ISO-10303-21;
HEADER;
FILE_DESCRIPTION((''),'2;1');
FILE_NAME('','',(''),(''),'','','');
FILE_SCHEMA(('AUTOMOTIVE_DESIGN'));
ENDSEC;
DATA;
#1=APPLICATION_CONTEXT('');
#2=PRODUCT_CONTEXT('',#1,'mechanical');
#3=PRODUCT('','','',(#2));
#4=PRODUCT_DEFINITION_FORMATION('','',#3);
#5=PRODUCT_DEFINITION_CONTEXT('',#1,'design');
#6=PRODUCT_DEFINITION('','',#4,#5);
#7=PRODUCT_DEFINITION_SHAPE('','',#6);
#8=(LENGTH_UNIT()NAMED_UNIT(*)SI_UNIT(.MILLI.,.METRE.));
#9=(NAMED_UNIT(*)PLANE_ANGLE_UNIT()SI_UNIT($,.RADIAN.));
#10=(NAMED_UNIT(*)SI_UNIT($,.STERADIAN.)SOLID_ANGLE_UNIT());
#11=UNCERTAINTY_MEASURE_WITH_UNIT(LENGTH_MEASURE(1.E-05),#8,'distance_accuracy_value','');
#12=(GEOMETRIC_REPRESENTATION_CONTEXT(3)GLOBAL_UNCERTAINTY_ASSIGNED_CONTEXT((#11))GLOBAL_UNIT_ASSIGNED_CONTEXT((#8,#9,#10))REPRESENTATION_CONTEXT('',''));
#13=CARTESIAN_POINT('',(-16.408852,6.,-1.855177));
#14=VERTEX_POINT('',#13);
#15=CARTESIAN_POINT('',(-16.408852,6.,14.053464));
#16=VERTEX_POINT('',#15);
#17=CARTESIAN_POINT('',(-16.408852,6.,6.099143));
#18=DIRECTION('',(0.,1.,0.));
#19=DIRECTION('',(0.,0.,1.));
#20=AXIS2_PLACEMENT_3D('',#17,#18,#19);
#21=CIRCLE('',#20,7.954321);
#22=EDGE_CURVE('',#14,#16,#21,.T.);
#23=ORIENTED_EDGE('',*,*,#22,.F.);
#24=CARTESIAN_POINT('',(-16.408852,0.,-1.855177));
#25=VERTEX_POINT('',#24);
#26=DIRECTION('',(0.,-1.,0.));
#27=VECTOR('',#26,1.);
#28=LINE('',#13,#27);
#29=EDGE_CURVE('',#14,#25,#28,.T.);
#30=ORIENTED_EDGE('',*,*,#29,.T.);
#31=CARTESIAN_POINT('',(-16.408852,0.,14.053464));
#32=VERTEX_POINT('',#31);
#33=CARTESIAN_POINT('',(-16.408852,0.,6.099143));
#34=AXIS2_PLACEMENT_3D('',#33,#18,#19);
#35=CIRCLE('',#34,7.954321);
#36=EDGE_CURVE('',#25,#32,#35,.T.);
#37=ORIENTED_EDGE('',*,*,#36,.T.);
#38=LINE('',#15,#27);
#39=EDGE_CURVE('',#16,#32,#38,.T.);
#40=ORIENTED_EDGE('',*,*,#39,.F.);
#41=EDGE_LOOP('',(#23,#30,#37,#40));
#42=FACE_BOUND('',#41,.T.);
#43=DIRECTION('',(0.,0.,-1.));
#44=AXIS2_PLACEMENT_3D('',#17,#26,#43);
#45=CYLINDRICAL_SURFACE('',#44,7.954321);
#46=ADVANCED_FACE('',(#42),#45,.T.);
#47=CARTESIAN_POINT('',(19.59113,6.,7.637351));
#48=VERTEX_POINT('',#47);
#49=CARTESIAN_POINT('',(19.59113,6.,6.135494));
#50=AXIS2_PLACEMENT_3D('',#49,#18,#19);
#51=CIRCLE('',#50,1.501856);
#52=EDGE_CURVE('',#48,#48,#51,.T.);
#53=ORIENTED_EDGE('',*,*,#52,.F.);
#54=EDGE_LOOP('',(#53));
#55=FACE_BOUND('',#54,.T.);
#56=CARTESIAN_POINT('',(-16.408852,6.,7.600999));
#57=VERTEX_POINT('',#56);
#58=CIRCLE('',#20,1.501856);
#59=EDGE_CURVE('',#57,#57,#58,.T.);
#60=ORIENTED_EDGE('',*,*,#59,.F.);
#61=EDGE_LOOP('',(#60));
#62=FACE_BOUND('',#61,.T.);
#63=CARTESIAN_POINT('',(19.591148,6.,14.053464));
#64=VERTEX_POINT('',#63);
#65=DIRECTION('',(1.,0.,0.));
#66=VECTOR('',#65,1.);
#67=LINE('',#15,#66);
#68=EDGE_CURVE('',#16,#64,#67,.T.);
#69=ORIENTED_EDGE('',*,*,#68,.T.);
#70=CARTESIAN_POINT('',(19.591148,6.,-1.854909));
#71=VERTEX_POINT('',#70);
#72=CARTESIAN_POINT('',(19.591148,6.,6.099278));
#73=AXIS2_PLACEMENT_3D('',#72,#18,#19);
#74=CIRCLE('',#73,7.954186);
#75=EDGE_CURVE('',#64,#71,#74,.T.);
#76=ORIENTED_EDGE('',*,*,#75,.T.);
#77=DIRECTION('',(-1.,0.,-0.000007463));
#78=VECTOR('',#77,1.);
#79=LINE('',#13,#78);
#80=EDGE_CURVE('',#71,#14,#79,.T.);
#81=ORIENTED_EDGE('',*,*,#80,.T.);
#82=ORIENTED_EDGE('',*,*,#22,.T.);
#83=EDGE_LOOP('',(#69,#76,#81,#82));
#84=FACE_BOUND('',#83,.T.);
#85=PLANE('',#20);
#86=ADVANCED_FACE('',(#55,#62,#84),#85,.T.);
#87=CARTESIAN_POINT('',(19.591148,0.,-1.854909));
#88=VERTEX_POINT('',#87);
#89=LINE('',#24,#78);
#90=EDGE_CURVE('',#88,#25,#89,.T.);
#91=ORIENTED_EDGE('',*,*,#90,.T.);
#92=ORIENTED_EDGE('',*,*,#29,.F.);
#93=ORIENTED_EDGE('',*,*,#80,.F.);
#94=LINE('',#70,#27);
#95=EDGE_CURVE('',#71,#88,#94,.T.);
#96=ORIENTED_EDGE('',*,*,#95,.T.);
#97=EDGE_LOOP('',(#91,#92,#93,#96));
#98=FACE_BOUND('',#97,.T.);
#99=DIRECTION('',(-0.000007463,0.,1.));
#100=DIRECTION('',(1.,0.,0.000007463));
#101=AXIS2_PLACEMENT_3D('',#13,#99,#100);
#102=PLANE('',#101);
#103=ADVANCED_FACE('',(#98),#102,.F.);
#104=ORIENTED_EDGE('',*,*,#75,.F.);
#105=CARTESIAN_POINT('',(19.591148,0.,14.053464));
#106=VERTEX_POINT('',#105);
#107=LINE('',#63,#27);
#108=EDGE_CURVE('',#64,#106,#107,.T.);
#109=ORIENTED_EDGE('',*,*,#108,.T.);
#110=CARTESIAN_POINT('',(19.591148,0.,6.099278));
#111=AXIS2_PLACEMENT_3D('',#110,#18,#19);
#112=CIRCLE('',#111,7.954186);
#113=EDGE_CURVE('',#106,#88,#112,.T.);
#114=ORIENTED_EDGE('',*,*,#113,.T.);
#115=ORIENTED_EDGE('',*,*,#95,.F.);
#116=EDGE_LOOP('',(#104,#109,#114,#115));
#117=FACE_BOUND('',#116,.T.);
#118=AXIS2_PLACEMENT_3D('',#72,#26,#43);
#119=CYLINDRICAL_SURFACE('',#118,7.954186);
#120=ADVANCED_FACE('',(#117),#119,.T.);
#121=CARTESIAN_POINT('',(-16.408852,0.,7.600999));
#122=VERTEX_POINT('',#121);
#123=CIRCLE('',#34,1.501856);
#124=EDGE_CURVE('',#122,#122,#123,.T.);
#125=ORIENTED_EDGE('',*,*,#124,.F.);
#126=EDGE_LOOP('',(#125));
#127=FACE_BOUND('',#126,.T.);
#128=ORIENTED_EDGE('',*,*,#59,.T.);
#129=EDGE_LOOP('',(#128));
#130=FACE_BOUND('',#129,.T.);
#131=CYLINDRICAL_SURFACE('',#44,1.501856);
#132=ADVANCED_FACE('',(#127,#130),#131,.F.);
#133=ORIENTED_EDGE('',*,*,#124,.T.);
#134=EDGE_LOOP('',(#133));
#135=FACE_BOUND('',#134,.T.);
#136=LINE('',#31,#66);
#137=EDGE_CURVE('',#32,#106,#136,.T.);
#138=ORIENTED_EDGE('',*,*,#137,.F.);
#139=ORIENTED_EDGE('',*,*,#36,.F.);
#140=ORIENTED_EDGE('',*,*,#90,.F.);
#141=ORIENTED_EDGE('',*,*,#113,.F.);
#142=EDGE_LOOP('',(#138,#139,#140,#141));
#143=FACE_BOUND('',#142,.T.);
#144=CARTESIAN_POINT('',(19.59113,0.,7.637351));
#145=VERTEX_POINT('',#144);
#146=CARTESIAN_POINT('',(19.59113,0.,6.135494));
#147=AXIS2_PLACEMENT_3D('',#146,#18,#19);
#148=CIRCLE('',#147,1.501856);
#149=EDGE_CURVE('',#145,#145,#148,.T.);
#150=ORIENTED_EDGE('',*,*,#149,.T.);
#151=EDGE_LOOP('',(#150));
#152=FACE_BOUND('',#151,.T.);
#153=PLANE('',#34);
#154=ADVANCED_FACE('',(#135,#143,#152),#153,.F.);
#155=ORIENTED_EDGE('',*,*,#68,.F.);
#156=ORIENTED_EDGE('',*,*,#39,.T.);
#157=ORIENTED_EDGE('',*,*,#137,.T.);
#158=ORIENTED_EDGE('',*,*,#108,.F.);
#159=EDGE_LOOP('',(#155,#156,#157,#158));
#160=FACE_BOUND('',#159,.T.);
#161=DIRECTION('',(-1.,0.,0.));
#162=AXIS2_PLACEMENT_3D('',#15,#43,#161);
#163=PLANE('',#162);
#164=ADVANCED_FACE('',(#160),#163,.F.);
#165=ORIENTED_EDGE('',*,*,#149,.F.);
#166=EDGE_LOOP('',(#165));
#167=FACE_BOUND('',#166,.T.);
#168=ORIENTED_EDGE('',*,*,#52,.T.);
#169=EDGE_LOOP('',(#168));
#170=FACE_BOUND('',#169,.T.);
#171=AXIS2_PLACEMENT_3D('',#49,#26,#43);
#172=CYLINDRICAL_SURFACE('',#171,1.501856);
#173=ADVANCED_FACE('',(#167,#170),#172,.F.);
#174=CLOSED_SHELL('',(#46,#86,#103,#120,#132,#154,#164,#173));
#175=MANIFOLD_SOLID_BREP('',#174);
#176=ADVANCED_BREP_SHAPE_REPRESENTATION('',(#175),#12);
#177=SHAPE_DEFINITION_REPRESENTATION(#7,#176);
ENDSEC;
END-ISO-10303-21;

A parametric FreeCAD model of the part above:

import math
import FreeCAD as App
import Part
import Sketcher
from FreeCAD import Vector

doc = App.newDocument("Part")
params = doc.addObject("Spreadsheet::Sheet", "Params")
for row, (alias, value) in enumerate([
    ("sketch1_width", "36 mm"),
    ("pad1_length", "6 mm"),
], start=1):
    params.set(f"A{row}", alias)
    params.set(f"B{row}", "=" + value)
    params.setAlias(f"B{row}", alias)

body = doc.addObject("PartDesign::Body", "Body")

# Sketch on XZ plane
sketch1 = doc.addObject("Sketcher::SketchObject", "Sketch")
body.addObject(sketch1)
sketch1.AttachmentSupport = (doc.XZ_Plane, [""])
sketch1.MapMode = "FlatFace"
sketch1.addGeometry(Part.LineSegment(Vector(19.6, -1.9, 0), Vector(-16.4, -1.9, 0)), False)
sketch1.addGeometry(Part.ArcOfCircle(Part.Circle(Vector(-16.4, 6.1, 0), Vector(0, 0, 1), 8), math.radians(90), math.radians(270)), False)
sketch1.addGeometry(Part.LineSegment(Vector(-16.4, 14.1, 0), Vector(19.6, 14.1, 0)), False)
sketch1.addGeometry(Part.ArcOfCircle(Part.Circle(Vector(19.6, 6.1, 0), Vector(0, 0, 1), 8), math.radians(-90), math.radians(90)), False)
sketch1.addGeometry(Part.Circle(Vector(19.6, 6.1, 0), Vector(0, 0, 1), 1.5), False)
sketch1.addGeometry(Part.Circle(Vector(-16.4, 6.1, 0), Vector(0, 0, 1), 1.5), False)
sketch1.addConstraint(Sketcher.Constraint("Coincident", 0, 2, 1, 2))
sketch1.addConstraint(Sketcher.Constraint("Tangent", 1, 1, 2, 1))
sketch1.addConstraint(Sketcher.Constraint("Tangent", 2, 2, 3, 2))
sketch1.addConstraint(Sketcher.Constraint("Coincident", 3, 1, 0, 1))
sketch1.addConstraint(Sketcher.Constraint("Horizontal", 2))
sketch1.addConstraint(Sketcher.Constraint("Coincident", 5, 3, 1, 3))
sketch1.addConstraint(Sketcher.Constraint("Equal", 4, 5))
sketch1.addConstraint(Sketcher.Constraint("Vertical", 5, 3, 0, 2))
sketch1.addConstraint(Sketcher.Constraint("Vertical", 2, 2, 3, 1))
sketch1.addConstraint(Sketcher.Constraint("DistanceX", 2, 1, 2, 2, 36.0))
sketch1.addConstraint(Sketcher.Constraint("Radius", 1, 7.954321))
sketch1.addConstraint(Sketcher.Constraint("Diameter", 4, 3.003712))
sketch1.addConstraint(Sketcher.Constraint("Radius", 3, 7.954186))
sketch1.addConstraint(Sketcher.Constraint("DistanceX", 1, 3, -1, 1, 16.408852))
sketch1.addConstraint(Sketcher.Constraint("DistanceX", -1, 1, 4, 3, 19.59113))
sketch1.addConstraint(Sketcher.Constraint("DistanceY", 3, 1, -1, 1, 1.854909))
sketch1.addConstraint(Sketcher.Constraint("DistanceY", 1, 3, 4, 3, 0.036351))
sketch1.setExpression("Constraints[9]", "Params.sketch1_width")
pad1 = doc.addObject("PartDesign::Pad", "Pad")
body.addObject(pad1)
pad1.Profile = sketch1
pad1.setExpression("Length", "Params.pad1_length")
pad1.Reversed = True

doc.recompute()
